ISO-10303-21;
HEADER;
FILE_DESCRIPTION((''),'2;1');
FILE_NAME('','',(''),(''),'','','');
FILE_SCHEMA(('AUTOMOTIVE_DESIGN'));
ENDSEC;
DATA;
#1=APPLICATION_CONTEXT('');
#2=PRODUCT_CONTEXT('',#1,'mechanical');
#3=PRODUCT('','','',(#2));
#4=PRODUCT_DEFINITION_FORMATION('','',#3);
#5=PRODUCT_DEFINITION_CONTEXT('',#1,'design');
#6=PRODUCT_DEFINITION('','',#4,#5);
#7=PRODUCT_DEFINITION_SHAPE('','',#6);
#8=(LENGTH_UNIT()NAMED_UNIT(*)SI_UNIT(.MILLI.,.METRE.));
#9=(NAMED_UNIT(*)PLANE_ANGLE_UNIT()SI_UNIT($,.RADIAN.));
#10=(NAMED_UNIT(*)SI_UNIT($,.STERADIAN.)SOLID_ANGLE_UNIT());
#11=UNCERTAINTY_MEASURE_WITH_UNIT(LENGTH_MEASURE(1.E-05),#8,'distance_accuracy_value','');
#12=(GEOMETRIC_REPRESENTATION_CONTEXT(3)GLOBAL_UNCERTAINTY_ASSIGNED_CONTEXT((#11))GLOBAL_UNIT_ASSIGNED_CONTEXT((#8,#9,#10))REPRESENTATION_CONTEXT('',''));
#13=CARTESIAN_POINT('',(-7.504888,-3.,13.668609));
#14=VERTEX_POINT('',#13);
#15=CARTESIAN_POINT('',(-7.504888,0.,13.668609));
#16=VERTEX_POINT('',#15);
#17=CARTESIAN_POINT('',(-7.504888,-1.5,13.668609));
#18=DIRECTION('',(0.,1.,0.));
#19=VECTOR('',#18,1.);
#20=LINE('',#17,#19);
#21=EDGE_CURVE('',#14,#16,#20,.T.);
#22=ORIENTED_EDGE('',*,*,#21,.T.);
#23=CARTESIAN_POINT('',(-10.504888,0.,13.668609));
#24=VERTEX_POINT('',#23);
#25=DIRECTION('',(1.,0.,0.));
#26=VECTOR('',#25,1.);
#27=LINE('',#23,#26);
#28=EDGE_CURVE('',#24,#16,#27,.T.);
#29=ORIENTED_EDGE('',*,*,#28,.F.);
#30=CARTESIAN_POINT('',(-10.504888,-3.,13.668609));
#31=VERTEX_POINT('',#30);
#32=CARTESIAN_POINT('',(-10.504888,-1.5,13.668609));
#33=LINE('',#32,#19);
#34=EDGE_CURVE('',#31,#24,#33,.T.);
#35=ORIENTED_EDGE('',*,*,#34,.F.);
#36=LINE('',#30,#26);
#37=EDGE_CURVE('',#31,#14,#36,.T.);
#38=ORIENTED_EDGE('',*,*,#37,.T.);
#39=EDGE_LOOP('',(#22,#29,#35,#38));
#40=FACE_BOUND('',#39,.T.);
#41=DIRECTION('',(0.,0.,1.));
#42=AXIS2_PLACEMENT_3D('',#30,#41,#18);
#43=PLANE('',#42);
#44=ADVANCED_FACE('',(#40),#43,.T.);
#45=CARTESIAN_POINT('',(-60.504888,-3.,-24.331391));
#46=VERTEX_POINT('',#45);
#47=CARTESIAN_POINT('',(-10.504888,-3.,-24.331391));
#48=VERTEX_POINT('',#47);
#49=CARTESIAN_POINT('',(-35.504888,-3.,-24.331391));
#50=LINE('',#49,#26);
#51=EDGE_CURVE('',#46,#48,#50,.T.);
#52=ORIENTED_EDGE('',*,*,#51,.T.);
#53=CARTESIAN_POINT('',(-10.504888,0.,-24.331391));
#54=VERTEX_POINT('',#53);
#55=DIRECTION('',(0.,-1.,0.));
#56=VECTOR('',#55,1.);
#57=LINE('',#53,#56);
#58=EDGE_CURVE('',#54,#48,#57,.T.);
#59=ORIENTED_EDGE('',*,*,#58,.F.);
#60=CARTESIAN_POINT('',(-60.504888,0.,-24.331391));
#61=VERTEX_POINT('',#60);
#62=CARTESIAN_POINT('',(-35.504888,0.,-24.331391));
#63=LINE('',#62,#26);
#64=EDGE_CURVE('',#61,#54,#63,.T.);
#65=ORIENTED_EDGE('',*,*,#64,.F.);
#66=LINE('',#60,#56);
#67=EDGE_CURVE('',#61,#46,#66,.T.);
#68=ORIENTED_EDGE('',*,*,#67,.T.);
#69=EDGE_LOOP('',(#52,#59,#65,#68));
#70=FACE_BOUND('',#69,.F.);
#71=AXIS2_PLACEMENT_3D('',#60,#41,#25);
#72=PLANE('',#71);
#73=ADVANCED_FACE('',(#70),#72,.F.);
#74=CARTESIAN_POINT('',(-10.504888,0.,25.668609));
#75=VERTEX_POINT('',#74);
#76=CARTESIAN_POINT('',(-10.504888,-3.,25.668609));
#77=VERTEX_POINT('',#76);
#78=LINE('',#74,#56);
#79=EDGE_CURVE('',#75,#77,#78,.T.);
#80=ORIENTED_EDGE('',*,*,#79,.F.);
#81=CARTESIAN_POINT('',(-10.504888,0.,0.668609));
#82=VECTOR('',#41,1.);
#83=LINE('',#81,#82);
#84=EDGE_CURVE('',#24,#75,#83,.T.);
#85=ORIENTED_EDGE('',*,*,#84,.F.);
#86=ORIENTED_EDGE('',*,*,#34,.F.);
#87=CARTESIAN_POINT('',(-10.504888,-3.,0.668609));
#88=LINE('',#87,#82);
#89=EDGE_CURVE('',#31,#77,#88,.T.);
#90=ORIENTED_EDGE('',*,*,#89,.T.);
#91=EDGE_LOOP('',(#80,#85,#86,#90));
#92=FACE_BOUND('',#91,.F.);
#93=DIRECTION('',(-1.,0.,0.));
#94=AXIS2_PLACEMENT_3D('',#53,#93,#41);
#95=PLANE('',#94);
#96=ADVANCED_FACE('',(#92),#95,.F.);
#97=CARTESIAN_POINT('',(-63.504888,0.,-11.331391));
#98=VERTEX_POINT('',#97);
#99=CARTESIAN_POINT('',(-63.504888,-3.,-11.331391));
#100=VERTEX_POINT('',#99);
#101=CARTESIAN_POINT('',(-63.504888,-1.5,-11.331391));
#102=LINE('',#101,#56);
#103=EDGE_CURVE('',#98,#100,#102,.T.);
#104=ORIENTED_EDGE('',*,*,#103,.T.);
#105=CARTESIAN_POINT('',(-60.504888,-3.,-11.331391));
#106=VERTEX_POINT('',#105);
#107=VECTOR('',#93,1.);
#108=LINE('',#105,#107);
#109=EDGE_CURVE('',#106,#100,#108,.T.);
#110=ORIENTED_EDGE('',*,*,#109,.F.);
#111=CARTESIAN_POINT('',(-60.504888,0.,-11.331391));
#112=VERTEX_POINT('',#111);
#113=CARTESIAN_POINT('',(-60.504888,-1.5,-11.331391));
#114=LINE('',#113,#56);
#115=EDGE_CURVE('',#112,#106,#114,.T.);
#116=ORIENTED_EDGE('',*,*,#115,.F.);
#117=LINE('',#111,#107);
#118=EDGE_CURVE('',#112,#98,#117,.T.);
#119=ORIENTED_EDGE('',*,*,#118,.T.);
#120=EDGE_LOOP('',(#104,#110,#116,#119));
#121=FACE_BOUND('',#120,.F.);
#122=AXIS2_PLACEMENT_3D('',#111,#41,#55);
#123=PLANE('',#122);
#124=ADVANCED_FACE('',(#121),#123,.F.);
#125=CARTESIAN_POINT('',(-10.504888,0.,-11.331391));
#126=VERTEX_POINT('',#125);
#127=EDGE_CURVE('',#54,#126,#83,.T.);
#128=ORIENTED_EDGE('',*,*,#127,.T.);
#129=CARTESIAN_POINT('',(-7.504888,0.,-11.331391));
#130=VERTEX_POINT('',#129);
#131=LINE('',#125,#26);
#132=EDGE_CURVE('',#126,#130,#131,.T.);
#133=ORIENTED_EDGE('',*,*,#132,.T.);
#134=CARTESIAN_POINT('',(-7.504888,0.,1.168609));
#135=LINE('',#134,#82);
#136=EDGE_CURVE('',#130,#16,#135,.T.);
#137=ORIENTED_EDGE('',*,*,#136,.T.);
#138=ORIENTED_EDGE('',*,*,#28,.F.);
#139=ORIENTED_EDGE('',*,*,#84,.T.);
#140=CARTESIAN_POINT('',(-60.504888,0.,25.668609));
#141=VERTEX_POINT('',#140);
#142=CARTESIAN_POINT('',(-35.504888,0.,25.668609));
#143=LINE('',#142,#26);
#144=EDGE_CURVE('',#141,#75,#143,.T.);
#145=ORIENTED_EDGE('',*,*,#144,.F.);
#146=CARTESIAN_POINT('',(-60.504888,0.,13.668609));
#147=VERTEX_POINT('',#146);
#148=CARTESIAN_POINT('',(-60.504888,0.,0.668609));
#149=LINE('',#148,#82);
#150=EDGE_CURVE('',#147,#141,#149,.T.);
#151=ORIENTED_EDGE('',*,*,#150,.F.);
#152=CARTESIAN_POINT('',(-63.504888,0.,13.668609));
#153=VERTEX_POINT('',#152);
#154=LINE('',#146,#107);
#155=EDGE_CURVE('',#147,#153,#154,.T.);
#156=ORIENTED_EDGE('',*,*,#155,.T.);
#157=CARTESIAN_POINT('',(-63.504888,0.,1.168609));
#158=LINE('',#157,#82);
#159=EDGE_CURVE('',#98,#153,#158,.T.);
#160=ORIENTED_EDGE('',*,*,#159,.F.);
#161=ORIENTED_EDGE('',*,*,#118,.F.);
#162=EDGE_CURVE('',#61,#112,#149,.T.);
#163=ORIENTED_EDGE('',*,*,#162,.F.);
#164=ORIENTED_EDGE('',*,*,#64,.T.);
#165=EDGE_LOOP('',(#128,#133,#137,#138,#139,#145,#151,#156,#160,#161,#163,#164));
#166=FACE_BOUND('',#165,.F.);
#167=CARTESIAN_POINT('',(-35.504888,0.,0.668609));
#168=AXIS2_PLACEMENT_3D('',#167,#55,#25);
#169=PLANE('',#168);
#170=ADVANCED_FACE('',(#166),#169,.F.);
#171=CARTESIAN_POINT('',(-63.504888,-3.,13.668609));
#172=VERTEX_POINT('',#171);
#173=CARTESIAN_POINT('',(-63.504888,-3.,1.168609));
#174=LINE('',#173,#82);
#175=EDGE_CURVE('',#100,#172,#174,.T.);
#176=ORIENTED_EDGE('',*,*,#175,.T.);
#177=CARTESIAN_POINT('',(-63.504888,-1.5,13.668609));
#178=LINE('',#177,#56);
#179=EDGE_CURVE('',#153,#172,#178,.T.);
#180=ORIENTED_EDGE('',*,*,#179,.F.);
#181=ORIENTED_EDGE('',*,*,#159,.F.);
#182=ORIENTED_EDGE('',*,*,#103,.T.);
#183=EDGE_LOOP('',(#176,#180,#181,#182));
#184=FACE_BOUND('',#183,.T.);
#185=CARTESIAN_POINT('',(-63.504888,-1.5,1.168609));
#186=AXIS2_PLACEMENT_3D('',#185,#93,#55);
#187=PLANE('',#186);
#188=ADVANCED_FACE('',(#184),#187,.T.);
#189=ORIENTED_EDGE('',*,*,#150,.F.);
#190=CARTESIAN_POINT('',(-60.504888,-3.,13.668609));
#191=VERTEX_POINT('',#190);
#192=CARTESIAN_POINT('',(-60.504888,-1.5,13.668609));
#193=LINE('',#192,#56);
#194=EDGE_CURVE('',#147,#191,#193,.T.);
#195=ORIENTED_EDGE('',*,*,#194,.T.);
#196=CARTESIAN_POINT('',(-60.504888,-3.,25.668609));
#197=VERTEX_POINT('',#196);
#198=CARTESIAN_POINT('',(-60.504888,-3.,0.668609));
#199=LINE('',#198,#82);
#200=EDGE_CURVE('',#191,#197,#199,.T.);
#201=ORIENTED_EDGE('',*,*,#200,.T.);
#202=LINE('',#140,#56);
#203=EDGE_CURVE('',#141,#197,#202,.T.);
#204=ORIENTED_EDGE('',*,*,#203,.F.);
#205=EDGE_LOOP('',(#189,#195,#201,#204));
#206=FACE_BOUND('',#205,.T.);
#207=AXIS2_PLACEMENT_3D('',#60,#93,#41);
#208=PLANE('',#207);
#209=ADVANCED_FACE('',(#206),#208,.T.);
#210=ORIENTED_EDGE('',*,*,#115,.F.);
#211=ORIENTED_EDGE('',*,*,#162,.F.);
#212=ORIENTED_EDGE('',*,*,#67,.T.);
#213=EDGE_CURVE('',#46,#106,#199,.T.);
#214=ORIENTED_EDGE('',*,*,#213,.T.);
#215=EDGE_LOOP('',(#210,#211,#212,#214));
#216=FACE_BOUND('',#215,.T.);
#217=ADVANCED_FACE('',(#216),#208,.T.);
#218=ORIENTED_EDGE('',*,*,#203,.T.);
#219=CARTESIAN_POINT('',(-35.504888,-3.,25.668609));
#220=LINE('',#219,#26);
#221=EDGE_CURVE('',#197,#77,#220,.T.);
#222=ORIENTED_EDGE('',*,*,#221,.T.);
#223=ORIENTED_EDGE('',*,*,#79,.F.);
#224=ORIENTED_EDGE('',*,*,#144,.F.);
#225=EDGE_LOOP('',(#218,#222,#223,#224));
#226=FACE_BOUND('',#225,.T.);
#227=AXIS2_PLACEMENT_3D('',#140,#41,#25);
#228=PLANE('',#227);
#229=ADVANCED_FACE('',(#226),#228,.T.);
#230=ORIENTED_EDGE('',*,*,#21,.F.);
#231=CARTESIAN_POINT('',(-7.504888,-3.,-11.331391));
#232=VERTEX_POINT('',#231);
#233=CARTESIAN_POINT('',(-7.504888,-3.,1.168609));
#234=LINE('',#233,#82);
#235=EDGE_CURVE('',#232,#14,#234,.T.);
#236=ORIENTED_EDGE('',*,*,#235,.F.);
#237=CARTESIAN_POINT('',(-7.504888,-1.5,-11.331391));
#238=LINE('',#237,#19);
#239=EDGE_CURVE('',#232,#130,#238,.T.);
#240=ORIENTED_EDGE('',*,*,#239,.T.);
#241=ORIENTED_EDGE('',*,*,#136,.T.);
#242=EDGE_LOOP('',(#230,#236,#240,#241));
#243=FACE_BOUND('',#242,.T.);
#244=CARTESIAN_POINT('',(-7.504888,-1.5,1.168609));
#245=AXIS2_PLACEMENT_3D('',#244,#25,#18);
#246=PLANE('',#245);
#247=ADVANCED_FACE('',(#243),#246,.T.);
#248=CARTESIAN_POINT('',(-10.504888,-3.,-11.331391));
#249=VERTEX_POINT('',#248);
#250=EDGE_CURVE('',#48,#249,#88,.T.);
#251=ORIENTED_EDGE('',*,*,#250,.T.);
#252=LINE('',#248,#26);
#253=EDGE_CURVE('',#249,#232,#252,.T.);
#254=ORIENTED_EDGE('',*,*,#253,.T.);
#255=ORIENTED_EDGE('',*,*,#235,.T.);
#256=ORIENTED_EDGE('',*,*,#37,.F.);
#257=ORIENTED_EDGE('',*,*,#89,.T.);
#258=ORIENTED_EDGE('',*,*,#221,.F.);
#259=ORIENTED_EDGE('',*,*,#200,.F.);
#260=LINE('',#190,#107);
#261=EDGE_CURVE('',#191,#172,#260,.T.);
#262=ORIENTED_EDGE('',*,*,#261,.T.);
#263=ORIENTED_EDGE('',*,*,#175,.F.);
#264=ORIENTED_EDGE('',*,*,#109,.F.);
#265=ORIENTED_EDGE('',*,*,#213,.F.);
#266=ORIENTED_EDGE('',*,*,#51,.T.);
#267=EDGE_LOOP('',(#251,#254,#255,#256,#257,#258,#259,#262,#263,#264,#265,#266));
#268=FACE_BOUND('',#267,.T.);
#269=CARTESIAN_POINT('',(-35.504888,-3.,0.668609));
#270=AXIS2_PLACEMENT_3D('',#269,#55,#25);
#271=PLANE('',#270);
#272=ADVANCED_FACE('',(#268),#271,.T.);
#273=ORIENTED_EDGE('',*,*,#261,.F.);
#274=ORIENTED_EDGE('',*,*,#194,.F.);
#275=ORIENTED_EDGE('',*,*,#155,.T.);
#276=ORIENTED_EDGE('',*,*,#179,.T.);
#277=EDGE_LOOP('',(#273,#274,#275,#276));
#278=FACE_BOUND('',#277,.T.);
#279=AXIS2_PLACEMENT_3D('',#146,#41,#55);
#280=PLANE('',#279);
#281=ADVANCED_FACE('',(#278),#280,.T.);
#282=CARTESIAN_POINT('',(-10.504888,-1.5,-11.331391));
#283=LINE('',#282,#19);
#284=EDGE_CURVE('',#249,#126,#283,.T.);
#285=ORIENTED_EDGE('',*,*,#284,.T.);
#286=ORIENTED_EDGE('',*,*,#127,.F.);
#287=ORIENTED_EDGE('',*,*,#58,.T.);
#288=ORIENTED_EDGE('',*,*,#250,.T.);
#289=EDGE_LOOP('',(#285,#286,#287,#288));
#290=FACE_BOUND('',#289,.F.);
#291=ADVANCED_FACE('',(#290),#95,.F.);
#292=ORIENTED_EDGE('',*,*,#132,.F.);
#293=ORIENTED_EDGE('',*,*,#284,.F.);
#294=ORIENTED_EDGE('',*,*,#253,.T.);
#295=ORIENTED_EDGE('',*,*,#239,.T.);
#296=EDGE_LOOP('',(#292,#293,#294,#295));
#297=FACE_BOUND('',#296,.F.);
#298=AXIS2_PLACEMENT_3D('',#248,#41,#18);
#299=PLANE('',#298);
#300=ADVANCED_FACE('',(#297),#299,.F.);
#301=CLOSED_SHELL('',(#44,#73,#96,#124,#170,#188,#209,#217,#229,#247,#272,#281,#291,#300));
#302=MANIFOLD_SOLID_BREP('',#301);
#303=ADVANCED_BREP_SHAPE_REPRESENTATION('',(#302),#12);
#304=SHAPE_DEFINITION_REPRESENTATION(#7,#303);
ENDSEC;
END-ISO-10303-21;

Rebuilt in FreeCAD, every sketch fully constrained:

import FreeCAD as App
import Part
import Sketcher
Q = App.Units.Quantity

doc = App.newDocument("Part")
body = doc.addObject("PartDesign::Body", "Body")

# Sketch on XZ plane
sketch1 = body.newObject("Sketcher::SketchObject", "Sketch")
sketch1.AttachmentSupport = (doc.getObject("XZ_Plane"), [""])
sketch1.MapMode = "FlatFace"
sketch1.addGeometry(Part.LineSegment(App.Vector(-60.504888, 25.668609, 0), App.Vector(-60.504888, -24.331391, 0)), False)
sketch1.addGeometry(Part.LineSegment(App.Vector(-60.504888, -24.331391, 0), App.Vector(-10.504888, -24.331391, 0)), False)
sketch1.addGeometry(Part.LineSegment(App.Vector(-10.504888, -24.331391, 0), App.Vector(-10.504888, 25.668609, 0)), False)
sketch1.addGeometry(Part.LineSegment(App.Vector(-10.504888, 25.668609, 0), App.Vector(-60.504888, 25.668609, 0)), False)
sketch1.addConstraint(Sketcher.Constraint("Coincident", 0, 2, 1, 1))
sketch1.addConstraint(Sketcher.Constraint("Coincident", 1, 2, 2, 1))
sketch1.addConstraint(Sketcher.Constraint("Coincident", 2, 2, 3, 1))
sketch1.addConstraint(Sketcher.Constraint("Coincident", 3, 2, 0, 1))
sketch1.addConstraint(Sketcher.Constraint("Vertical", 0))
sketch1.addConstraint(Sketcher.Constraint("Horizontal", 1))
sketch1.addConstraint(Sketcher.Constraint("Vertical", 2))
sketch1.addConstraint(Sketcher.Constraint("Horizontal", 3))
sketch1.addConstraint(Sketcher.Constraint("Equal", 3, 0))
sketch1.addConstraint(Sketcher.Constraint("DistanceX", 1, 1, 1, 2, Q("50 mm")))
sketch1.addConstraint(Sketcher.Constraint("DistanceY", 0, 2, -1, 1, Q("24.331391 mm")))
sketch1.addConstraint(Sketcher.Constraint("DistanceX", 0, 2, -1, 1, Q("60.504888 mm")))
pad1 = body.newObject("PartDesign::Pad", "Pad")
pad1.Profile = sketch1
pad1.Length = 3

# Sketch on YZ plane
sketch2 = body.newObject("Sketcher::SketchObject", "Sketch001")
sketch2.AttachmentSupport = (doc.getObject("YZ_Plane"), [""])
sketch2.MapMode = "FlatFace"
sketch2.AttachmentOffset = App.Placement(App.Vector(0, 0, -10.504888), App.Rotation())
sketch2.addGeometry(Part.LineSegment(App.Vector(-3, 13.668609, 0), App.Vector(-3, -11.331391, 0)), False)
sketch2.addGeometry(Part.LineSegment(App.Vector(-3, -11.331391, 0), App.Vector(0, -11.331391, 0)), False)
sketch2.addGeometry(Part.LineSegment(App.Vector(0, -11.331391, 0), App.Vector(0, 13.668609, 0)), False)
sketch2.addGeometry(Part.LineSegment(App.Vector(0, 13.668609, 0), App.Vector(-3, 13.668609, 0)), False)
sketch2.addConstraint(Sketcher.Constraint("Coincident", 0, 2, 1, 1))
sketch2.addConstraint(Sketcher.Constraint("Coincident", 1, 2, 2, 1))
sketch2.addConstraint(Sketcher.Constraint("Coincident", 2, 2, 3, 1))
sketch2.addConstraint(Sketcher.Constraint("Coincident", 3, 2, 0, 1))
sketch2.addConstraint(Sketcher.Constraint("Vertical", 0))
sketch2.addConstraint(Sketcher.Constraint("Horizontal", 1))
sketch2.addConstraint(Sketcher.Constraint("Vertical", 2))
sketch2.addConstraint(Sketcher.Constraint("Horizontal", 3))
sketch2.addConstraint(Sketcher.Constraint("PointOnObject", 1, 2, -2))
sketch2.addConstraint(Sketcher.Constraint("DistanceX", 1, 1, 1, 2, Q("3 mm")))
sketch2.addConstraint(Sketcher.Constraint("DistanceY", 0, 2, 0, 1, Q("25 mm")))
sketch2.addConstraint(Sketcher.Constraint("DistanceY", 0, 2, -1, 1, Q("11.331391 mm")))
pad2 = body.newObject("PartDesign::Pad", "Pad001")
pad2.Profile = sketch2
pad2.Length = 3

# Sketch on YZ plane
sketch3 = body.newObject("Sketcher::SketchObject", "Sketch002")
sketch3.AttachmentSupport = (doc.getObject("YZ_Plane"), [""])
sketch3.MapMode = "FlatFace"
sketch3.AttachmentOffset = App.Placement(App.Vector(0, 0, -60.504888), App.Rotation())
sketch3.addGeometry(Part.LineSegment(App.Vector(0, 13.668609, 0), App.Vector(0, -11.331391, 0)), False)
sketch3.addGeometry(Part.LineSegment(App.Vector(0, -11.331391, 0), App.Vector(-3, -11.331391, 0)), False)
sketch3.addGeometry(Part.LineSegment(App.Vector(-3, -11.331391, 0), App.Vector(-3, 13.668609, 0)), False)
sketch3.addGeometry(Part.LineSegment(App.Vector(-3, 13.668609, 0), App.Vector(0, 13.668609, 0)), False)
sketch3.addConstraint(Sketcher.Constraint("Coincident", 0, 2, 1, 1))
sketch3.addConstraint(Sketcher.Constraint("Coincident", 1, 2, 2, 1))
sketch3.addConstraint(Sketcher.Constraint("Coincident", 2, 2, 3, 1))
sketch3.addConstraint(Sketcher.Constraint("Coincident", 3, 2, 0, 1))
sketch3.addConstraint(Sketcher.Constraint("Vertical", 0))
sketch3.addConstraint(Sketcher.Constraint("Horizontal", 1))
sketch3.addConstraint(Sketcher.Constraint("Vertical", 2))
sketch3.addConstraint(Sketcher.Constraint("Horizontal", 3))
sketch3.addConstraint(Sketcher.Constraint("PointOnObject", 0, 2, -2))
sketch3.addConstraint(Sketcher.Constraint("DistanceX", 1, 2, 1, 1, Q("3 mm")))
sketch3.addConstraint(Sketcher.Constraint("DistanceY", 0, 2, 0, 1, Q("25 mm")))
sketch3.addConstraint(Sketcher.Constraint("DistanceY", 0, 2, -1, 1, Q("11.331391 mm")))
pad3 = body.newObject("PartDesign::Pad", "Pad002")
pad3.Profile = sketch3
pad3.Length = 3
pad3.Reversed = True

doc.recompute()
